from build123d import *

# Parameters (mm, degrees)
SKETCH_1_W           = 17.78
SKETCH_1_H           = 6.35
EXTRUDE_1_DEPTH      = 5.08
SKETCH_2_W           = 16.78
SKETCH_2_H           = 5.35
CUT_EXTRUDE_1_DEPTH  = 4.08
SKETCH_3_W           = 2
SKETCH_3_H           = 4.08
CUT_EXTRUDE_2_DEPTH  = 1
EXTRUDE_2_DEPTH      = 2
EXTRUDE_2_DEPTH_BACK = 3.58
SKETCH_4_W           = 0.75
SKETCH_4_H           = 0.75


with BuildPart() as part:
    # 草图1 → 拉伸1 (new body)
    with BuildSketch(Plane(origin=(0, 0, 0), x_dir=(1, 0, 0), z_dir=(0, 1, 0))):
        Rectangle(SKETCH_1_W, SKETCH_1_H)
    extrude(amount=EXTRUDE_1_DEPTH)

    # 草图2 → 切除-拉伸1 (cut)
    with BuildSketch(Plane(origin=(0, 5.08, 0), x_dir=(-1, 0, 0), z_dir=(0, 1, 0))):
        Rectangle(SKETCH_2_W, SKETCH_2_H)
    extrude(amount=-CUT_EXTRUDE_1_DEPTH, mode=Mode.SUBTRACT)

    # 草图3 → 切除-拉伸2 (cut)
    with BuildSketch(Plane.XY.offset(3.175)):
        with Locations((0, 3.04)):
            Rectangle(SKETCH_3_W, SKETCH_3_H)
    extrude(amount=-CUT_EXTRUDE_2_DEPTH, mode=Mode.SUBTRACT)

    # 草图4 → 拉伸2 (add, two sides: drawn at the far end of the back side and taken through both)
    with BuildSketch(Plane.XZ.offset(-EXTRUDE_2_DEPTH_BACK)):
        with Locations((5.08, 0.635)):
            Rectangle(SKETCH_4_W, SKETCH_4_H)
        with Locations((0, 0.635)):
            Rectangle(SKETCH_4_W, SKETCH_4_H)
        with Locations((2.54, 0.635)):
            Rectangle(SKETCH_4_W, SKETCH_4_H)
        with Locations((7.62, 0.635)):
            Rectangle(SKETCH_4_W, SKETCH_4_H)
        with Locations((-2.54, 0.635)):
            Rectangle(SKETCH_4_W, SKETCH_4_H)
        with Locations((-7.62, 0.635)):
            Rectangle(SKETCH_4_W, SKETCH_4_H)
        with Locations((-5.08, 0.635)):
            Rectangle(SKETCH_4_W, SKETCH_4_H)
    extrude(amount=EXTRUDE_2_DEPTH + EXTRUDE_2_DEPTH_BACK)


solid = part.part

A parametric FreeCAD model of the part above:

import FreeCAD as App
import Part
import Sketcher
Q = App.Units.Quantity


def add_polygon(sketch, points):
    """Adds a closed chain of lines whose ends are joined by coincident constraints."""
    first, n = sketch.GeometryCount, len(points)
    for a, b in zip(points, points[1:] + points[:1]):
        sketch.addGeometry(Part.LineSegment(App.Vector(*a, 0), App.Vector(*b, 0)), False)
    for i in range(n):
        sketch.addConstraint(Sketcher.Constraint("Coincident", first + i, 2, first + (i + 1) % n, 1))

doc = App.newDocument("Part")
body = doc.addObject("PartDesign::Body", "Body")

# Sketch on XZ plane
sketch1 = doc.addObject("Sketcher::SketchObject", "Sketch")
body.addObject(sketch1)
sketch1.AttachmentSupport = (doc.XZ_Plane, [""])
sketch1.MapMode = "FlatFace"
add_polygon(sketch1, [(-8.89, -3.175), (-8.89, 3.175), (8.89, 3.175), (8.89, -3.175)])  # lines 0-3
sketch1.addConstraint([
    Sketcher.Constraint("Vertical", 0),
    Sketcher.Constraint("Horizontal", 1),
    Sketcher.Constraint("Vertical", 2),
    Sketcher.Constraint("Horizontal", 3),
    Sketcher.Constraint("Symmetric", 0, 2, 2, 2, -1, 1),
    Sketcher.Constraint("DistanceX", 1, 1, 1, 2, Q("0.7 in")),
    Sketcher.Constraint("DistanceY", 0, 1, 0, 2, Q("0.25 in")),
])
pad1 = doc.addObject("PartDesign::Pad", "Pad")
body.addObject(pad1)
pad1.Profile = sketch1
pad1.Length = Q("0.2 in")
pad1.Reversed = True

# Sketch on XZ plane
sketch2 = doc.addObject("Sketcher::SketchObject", "Sketch001")
body.addObject(sketch2)
sketch2.AttachmentSupport = (doc.XZ_Plane, [""])
sketch2.MapMode = "FlatFace"
sketch2.AttachmentOffset = App.Placement(App.Vector(0, 0, -0.2 * 25.4), App.Rotation())
add_polygon(sketch2, [(8.39, 2.675), (8.39, -2.675), (-8.39, -2.675), (-8.39, 2.675)])  # lines 0-3
sketch2.addConstraint([
    Sketcher.Constraint("Vertical", 0),
    Sketcher.Constraint("Horizontal", 1),
    Sketcher.Constraint("Vertical", 2),
    Sketcher.Constraint("Horizontal", 3),
    Sketcher.Constraint("Symmetric", 0, 2, 2, 2, -1, 1),
    Sketcher.Constraint("DistanceX", 1, 2, 1, 1, 16.78),
    Sketcher.Constraint("DistanceY", 0, 2, 0, 1, 5.35),
])
pocket1 = doc.addObject("PartDesign::Pocket", "Pocket")
body.addObject(pocket1)
pocket1.Profile = sketch2
pocket1.Length = 4.08
pocket1.Reversed = True

# Sketch on XY plane
sketch3 = doc.addObject("Sketcher::SketchObject", "Sketch002")
body.addObject(sketch3)
sketch3.AttachmentSupport = (doc.XY_Plane, [""])
sketch3.MapMode = "FlatFace"
sketch3.AttachmentOffset = App.Placement(App.Vector(0, 0, 0.125 * 25.4), App.Rotation())
add_polygon(sketch3, [(-1, 5.08), (-1, 1), (1, 1), (1, 5.08)])  # lines 0-3
sketch3.addConstraint([
    Sketcher.Constraint("Vertical", 0),
    Sketcher.Constraint("Horizontal", 1),
    Sketcher.Constraint("Vertical", 2),
    Sketcher.Constraint("Horizontal", 3),
    Sketcher.Constraint("DistanceY", -1, 1, 2, 2, Q("0.2 in")),
    Sketcher.Constraint("DistanceX", 1, 1, 1, 2, 2.0),
    Sketcher.Constraint("DistanceY", 0, 2, 0, 1, 4.08),
    Sketcher.Constraint("DistanceX", 0, 2, -1, 1, 1.0),
])
pocket2 = doc.addObject("PartDesign::Pocket", "Pocket001")
body.addObject(pocket2)
pocket2.Profile = sketch3
pocket2.Length = 1

# Sketch on XZ plane
sketch4 = doc.addObject("Sketcher::SketchObject", "Sketch003")
body.addObject(sketch4)
sketch4.AttachmentSupport = (doc.XZ_Plane, [""])
sketch4.MapMode = "FlatFace"
add_polygon(sketch4, [(4.705, 1.01), (4.705, 0.26), (5.455, 0.26), (5.455, 1.01)])  # lines 0-3
add_polygon(sketch4, [(-0.375, 1.01), (-0.375, 0.26), (0.375, 0.26), (0.375, 1.01)])  # lines 4-7
add_polygon(sketch4, [(2.165, 1.01), (2.165, 0.26), (2.915, 0.26), (2.915, 1.01)])  # lines 8-11
add_polygon(sketch4, [(7.245, 1.01), (7.245, 0.26), (7.995, 0.26), (7.995, 1.01)])  # lines 12-15
add_polygon(sketch4, [(-2.915, 1.01), (-2.915, 0.26), (-2.165, 0.26), (-2.165, 1.01)])  # lines 16-19
add_polygon(sketch4, [(-7.995, 1.01), (-7.995, 0.26), (-7.245, 0.26), (-7.245, 1.01)])  # lines 20-23
add_polygon(sketch4, [(-5.455, 1.01), (-5.455, 0.26), (-4.705, 0.26), (-4.705, 1.01)])  # lines 24-27
sketch4.addConstraint([
    Sketcher.Constraint("Vertical", 0),
    Sketcher.Constraint("Horizontal", 1),
    Sketcher.Constraint("Vertical", 2),
    Sketcher.Constraint("Horizontal", 3),
    Sketcher.Constraint("Vertical", 4),
    Sketcher.Constraint("Horizontal", 5),
    Sketcher.Constraint("Vertical", 6),
    Sketcher.Constraint("Horizontal", 7),
    Sketcher.Constraint("Vertical", 8),
    Sketcher.Constraint("Horizontal", 9),
    Sketcher.Constraint("Vertical", 10),
    Sketcher.Constraint("Horizontal", 11),
    Sketcher.Constraint("Vertical", 12),
    Sketcher.Constraint("Horizontal", 13),
    Sketcher.Constraint("Vertical", 14),
    Sketcher.Constraint("Horizontal", 15),
    Sketcher.Constraint("Vertical", 16),
    Sketcher.Constraint("Horizontal", 17),
    Sketcher.Constraint("Vertical", 18),
    Sketcher.Constraint("Horizontal", 19),
    Sketcher.Constraint("Vertical", 20),
    Sketcher.Constraint("Horizontal", 21),
    Sketcher.Constraint("Vertical", 22),
    Sketcher.Constraint("Horizontal", 23),
    Sketcher.Constraint("Vertical", 24),
    Sketcher.Constraint("Horizontal", 25),
    Sketcher.Constraint("Vertical", 26),
    Sketcher.Constraint("Horizontal", 27),
    Sketcher.Constraint("Symmetric", 9, 2, 16, 2, -2),
    Sketcher.Constraint("Symmetric", 11, 2, 18, 2, -2),
    Sketcher.Constraint("Symmetric", 13, 2, 20, 2, -2),
    Sketcher.Constraint("Symmetric", 15, 2, 22, 2, -2),
    Sketcher.Constraint("Symmetric", 1, 2, 24, 2, -2),
    Sketcher.Constraint("Symmetric", 3, 2, 26, 2, -2),
    Sketcher.Constraint("Horizontal", 1, 2, 4, 2),
    Sketcher.Constraint("Horizontal", 3, 2, 6, 2),
    Sketcher.Constraint("Horizontal", 5, 2, 8, 2),
    Sketcher.Constraint("Horizontal", 7, 2, 10, 2),
    Sketcher.Constraint("Horizontal", 9, 2, 12, 2),
    Sketcher.Constraint("Horizontal", 11, 2, 14, 2),
    Sketcher.Constraint("Equal", 3, 5),
    Sketcher.Constraint("Equal", 7, 9),
    Sketcher.Constraint("Equal", 11, 13),
    Sketcher.Constraint("Equal", 27, 0),
    Sketcher.Constraint("DistanceX", 4, 2, 0, 2, Q("0.2 in")),
    Sketcher.Constraint("DistanceX", 8, 2, 0, 2, Q("0.1 in")),
    Sketcher.Constraint("DistanceX", 0, 2, 12, 2, Q("0.1 in")),
    Sketcher.Constraint("DistanceX", 16, 2, 4, 2, Q("0.1 in")),
    Sketcher.Constraint("DistanceX", 1, 1, 1, 2, 0.75),
    Sketcher.Constraint("DistanceY", -1, 1, 0, 2, 0.26),
])
pad2 = doc.addObject("PartDesign::Pad", "Pad001")
body.addObject(pad2)
pad2.Profile = sketch4
pad2.Type = "TwoLengths"
pad2.Length = 2
pad2.Length2 = 3.58

doc.recompute()
